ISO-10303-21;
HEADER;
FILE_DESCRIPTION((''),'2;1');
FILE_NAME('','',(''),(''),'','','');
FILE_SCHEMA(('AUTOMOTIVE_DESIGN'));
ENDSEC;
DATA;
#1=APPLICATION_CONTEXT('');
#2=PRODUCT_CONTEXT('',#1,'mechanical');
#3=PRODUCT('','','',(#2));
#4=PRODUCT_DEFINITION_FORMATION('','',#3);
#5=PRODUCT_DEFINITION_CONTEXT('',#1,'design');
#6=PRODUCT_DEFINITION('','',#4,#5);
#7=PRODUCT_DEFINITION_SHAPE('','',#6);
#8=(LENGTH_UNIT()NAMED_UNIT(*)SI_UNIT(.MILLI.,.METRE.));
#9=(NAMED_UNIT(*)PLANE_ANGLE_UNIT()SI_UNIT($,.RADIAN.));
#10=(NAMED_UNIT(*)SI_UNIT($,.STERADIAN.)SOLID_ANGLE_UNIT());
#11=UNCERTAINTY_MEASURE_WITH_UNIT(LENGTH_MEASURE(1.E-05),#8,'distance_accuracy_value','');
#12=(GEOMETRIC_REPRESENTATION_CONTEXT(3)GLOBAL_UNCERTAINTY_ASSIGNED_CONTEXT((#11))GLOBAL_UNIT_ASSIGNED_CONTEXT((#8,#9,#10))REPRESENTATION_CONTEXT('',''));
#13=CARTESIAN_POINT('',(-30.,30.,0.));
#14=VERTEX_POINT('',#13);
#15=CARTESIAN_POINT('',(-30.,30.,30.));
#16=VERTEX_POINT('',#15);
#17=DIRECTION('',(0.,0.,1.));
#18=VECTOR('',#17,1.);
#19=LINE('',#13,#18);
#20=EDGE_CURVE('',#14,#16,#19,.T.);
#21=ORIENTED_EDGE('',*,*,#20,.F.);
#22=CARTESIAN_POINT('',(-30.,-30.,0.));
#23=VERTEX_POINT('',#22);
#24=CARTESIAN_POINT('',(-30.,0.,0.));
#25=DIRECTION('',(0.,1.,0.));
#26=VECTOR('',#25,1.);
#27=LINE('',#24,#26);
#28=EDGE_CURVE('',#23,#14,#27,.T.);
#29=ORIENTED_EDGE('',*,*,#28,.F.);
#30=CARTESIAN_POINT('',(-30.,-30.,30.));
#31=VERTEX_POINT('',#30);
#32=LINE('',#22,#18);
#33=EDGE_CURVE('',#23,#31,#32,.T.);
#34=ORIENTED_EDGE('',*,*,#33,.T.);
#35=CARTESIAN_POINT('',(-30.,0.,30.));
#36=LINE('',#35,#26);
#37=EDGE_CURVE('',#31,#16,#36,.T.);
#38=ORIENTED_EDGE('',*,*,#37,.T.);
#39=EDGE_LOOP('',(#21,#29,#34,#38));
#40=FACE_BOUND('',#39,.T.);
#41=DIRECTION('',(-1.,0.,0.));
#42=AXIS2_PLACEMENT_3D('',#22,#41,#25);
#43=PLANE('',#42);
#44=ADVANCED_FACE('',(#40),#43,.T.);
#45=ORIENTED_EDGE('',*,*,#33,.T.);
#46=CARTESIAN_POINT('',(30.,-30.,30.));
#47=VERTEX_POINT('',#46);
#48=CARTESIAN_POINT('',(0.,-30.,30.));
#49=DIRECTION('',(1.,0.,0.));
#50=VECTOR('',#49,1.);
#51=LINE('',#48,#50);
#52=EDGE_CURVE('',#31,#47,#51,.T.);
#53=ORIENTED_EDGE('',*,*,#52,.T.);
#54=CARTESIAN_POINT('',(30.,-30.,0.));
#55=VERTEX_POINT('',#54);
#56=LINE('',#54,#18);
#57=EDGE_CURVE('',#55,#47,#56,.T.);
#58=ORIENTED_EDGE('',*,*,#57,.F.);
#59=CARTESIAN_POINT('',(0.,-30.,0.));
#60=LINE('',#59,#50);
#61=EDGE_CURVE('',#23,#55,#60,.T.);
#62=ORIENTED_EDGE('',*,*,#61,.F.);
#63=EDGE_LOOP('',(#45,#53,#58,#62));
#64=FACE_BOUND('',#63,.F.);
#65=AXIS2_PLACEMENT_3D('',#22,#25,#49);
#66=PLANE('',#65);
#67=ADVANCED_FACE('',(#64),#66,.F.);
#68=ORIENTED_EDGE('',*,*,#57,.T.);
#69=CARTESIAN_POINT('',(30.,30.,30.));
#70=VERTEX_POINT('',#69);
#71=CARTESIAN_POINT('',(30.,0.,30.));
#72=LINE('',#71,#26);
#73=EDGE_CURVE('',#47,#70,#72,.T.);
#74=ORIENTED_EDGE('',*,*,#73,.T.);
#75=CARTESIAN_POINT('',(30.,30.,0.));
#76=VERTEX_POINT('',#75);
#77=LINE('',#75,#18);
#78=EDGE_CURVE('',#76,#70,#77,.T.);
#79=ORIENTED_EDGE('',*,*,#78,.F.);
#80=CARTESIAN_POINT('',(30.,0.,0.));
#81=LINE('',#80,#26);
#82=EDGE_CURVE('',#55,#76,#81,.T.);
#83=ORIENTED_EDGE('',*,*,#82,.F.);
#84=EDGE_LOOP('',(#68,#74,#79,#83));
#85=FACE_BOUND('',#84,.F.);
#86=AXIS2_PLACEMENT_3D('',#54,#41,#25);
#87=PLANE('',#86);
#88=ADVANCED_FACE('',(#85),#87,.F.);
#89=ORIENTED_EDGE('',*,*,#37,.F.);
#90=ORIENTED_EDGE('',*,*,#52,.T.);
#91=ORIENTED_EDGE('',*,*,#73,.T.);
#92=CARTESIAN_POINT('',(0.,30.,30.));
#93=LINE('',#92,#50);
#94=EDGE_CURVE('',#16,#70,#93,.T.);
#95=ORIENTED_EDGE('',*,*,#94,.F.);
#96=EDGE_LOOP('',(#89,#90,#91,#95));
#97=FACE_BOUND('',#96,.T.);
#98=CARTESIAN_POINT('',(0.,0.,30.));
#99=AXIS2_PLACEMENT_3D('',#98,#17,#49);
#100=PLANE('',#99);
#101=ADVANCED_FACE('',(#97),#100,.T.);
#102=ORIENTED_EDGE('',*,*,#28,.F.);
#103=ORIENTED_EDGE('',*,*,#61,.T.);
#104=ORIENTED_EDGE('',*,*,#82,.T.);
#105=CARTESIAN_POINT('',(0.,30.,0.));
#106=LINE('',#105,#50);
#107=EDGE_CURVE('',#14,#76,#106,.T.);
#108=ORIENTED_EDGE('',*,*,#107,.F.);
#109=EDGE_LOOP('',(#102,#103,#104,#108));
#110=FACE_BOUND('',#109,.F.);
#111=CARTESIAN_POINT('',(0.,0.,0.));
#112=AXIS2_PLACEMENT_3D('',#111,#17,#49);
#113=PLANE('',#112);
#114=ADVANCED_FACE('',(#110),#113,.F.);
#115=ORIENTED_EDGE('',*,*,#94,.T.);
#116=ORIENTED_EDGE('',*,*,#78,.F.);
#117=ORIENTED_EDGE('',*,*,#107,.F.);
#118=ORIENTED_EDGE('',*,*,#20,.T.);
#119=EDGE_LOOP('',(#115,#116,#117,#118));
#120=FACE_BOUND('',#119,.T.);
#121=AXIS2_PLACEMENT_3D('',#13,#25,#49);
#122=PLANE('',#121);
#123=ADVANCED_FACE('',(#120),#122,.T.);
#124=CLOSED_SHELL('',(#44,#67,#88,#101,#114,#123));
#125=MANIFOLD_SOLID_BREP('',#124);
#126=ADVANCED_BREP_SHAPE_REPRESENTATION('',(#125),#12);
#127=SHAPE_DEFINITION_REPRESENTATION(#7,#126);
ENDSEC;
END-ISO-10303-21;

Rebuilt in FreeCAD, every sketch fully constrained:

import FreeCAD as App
import Part
import Sketcher

V = App.Vector


def add_polygon(sketch, points):
    """Adds a closed chain of lines whose ends are joined by coincident constraints."""
    first, n = sketch.GeometryCount, len(points)
    for a, b in zip(points, points[1:] + points[:1]):
        sketch.addGeometry(Part.LineSegment(App.Vector(*a, 0), App.Vector(*b, 0)), False)
    for i in range(n):
        sketch.addConstraint(Sketcher.Constraint("Coincident", first + i, 2, first + (i + 1) % n, 1))

doc = App.newDocument("Part")
params = doc.addObject("Spreadsheet::Sheet", "Params")
for row, (alias, value) in enumerate([
    ("sketch1_width", "60 mm"),
    ("pad1_length", "30 mm"),
], start=1):
    params.set(f"A{row}", alias)
    params.set(f"B{row}", "=" + value)
    params.setAlias(f"B{row}", alias)

body = doc.addObject("PartDesign::Body", "Body")

sketch1 = doc.addObject("Sketcher::SketchObject", "Sketch")
body.addObject(sketch1)
sketch1.AttachmentSupport = (doc.XY_Plane, [""])
sketch1.MapMode = "FlatFace"
add_polygon(sketch1, [(-30, 30), (-30, -30), (30, -30), (30, 30)])
sketch1.addConstraint(Sketcher.Constraint("Vertical", 0))
sketch1.addConstraint(Sketcher.Constraint("Horizontal", 1))
sketch1.addConstraint(Sketcher.Constraint("Vertical", 2))
sketch1.addConstraint(Sketcher.Constraint("Horizontal", 3))
sketch1.addConstraint(Sketcher.Constraint("Symmetric", 0, 2, 2, 2, -1, 1))
sketch1.addConstraint(Sketcher.Constraint("Equal", 3, 0))
sketch1.addConstraint(Sketcher.Constraint("DistanceX", 1, 1, 1, 2, 60.0))
sketch1.setExpression("Constraints[10]", "Params.sketch1_width")
pad1 = doc.addObject("PartDesign::Pad", "Pad")
body.addObject(pad1)
pad1.Profile = sketch1
pad1.setExpression("Length", "Params.pad1_length")

doc.recompute()
